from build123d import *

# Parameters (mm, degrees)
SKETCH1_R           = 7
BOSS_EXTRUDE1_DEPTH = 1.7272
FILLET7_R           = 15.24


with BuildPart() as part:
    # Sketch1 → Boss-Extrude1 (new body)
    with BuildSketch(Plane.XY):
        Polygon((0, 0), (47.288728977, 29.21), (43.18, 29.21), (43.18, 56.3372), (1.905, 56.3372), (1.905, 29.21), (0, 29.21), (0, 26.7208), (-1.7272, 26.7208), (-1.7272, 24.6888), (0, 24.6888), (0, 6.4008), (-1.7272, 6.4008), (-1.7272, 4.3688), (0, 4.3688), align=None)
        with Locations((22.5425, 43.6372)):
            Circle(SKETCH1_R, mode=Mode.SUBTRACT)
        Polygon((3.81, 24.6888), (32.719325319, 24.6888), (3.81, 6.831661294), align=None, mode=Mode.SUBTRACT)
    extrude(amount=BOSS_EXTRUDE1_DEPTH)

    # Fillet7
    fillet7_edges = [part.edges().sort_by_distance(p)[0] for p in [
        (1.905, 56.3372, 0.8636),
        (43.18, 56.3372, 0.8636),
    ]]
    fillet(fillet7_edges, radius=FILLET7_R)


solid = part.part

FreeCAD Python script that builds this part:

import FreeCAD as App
import Part
import Sketcher
Q = App.Units.Quantity


def edges_at(feature, points):
    """Names of the edges that pass closest to the given points."""
    edges = feature.Shape.Edges
    near = lambda p: min(range(len(edges)), key=lambda i: edges[i].distToShape(Part.Vertex(*p))[0])
    return sorted({f"Edge{near(p) + 1}" for p in points})

doc = App.newDocument("Part")
params = doc.addObject("Spreadsheet::Sheet", "Params")
for row, (alias, value) in enumerate([
    ("sketch1_height", "0.08 in"),
    ("sketch1_height2", "0.72 in"),
    ("sketch1_width", "1.625 in"),
    ("sketch1_width2", "0.068 in"),
    ("sketch1_height3", "1.068 in"),
    ("pad1_length", "0.068 in"),
    ("fillet_radius", "0.6 in"),
], start=1):
    params.set(f"A{row}", alias)
    params.set(f"B{row}", "=" + value)
    params.setAlias(f"B{row}", alias)

body = doc.addObject("PartDesign::Body", "Body")

# Sketch on XY plane
sketch1 = doc.addObject("Sketcher::SketchObject", "Sketch")
body.addObject(sketch1)
sketch1.AttachmentSupport = (doc.XY_Plane, [""])
sketch1.MapMode = "FlatFace"
sketch1.addGeometry([
    Part.LineSegment(App.Vector(0, 0, 0), App.Vector(47.3, 29.2, 0)),  # 0
    Part.LineSegment(App.Vector(47.3, 29.2, 0), App.Vector(43.2, 29.2, 0)),  # 1
    Part.LineSegment(App.Vector(43.2, 29.2, 0), App.Vector(43.2, 56.3, 0)),  # 2
    Part.LineSegment(App.Vector(43.2, 56.3, 0), App.Vector(1.9, 56.3, 0)),  # 3
    Part.LineSegment(App.Vector(1.9, 56.3, 0), App.Vector(1.9, 29.2, 0)),  # 4
    Part.LineSegment(App.Vector(1.9, 29.2, 0), App.Vector(0, 29.2, 0)),  # 5
    Part.LineSegment(App.Vector(0, 29.2, 0), App.Vector(0, 26.7, 0)),  # 6
    Part.LineSegment(App.Vector(0, 26.7, 0), App.Vector(-1.7, 26.7, 0)),  # 7
    Part.LineSegment(App.Vector(-1.7, 26.7, 0), App.Vector(-1.7, 24.7, 0)),  # 8
    Part.LineSegment(App.Vector(-1.7, 24.7, 0), App.Vector(0, 24.7, 0)),  # 9
    Part.LineSegment(App.Vector(0, 24.7, 0), App.Vector(0, 6.4, 0)),  # 10
    Part.LineSegment(App.Vector(0, 6.4, 0), App.Vector(-1.7, 6.4, 0)),  # 11
    Part.LineSegment(App.Vector(-1.7, 6.4, 0), App.Vector(-1.7, 4.4, 0)),  # 12
    Part.LineSegment(App.Vector(-1.7, 4.4, 0), App.Vector(0, 4.4, 0)),  # 13
    Part.LineSegment(App.Vector(0, 4.4, 0), App.Vector(0, 0, 0)),  # 14
    Part.LineSegment(App.Vector(3.8, 6.8, 0), App.Vector(3.8, 24.7, 0)),  # 15
    Part.LineSegment(App.Vector(3.8, 24.7, 0), App.Vector(32.7, 24.7, 0)),  # 16
    Part.LineSegment(App.Vector(32.7, 24.7, 0), App.Vector(3.8, 6.8, 0)),  # 17
    Part.Circle(App.Vector(22.5, 43.6, 0), App.Vector(0, 0, 1), 7),  # 18
], False)
sketch1.addConstraint([
    Sketcher.Constraint("Coincident", 0, 2, 1, 1),
    Sketcher.Constraint("Coincident", 1, 2, 2, 1),
    Sketcher.Constraint("Coincident", 2, 2, 3, 1),
    Sketcher.Constraint("Coincident", 3, 2, 4, 1),
    Sketcher.Constraint("Coincident", 4, 2, 5, 1),
    Sketcher.Constraint("Coincident", 5, 2, 6, 1),
    Sketcher.Constraint("Coincident", 6, 2, 7, 1),
    Sketcher.Constraint("Coincident", 7, 2, 8, 1),
    Sketcher.Constraint("Coincident", 8, 2, 9, 1),
    Sketcher.Constraint("Coincident", 9, 2, 10, 1),
    Sketcher.Constraint("Coincident", 10, 2, 11, 1),
    Sketcher.Constraint("Coincident", 11, 2, 12, 1),
    Sketcher.Constraint("Coincident", 12, 2, 13, 1),
    Sketcher.Constraint("Coincident", 13, 2, 14, 1),
    Sketcher.Constraint("Coincident", 14, 2, 0, 1),
    Sketcher.Constraint("Coincident", 15, 2, 16, 1),
    Sketcher.Constraint("Coincident", 16, 2, 17, 1),
    Sketcher.Constraint("Coincident", 17, 2, 15, 1),
    Sketcher.Constraint("Horizontal", 1),
    Sketcher.Constraint("Vertical", 2),
    Sketcher.Constraint("Horizontal", 3),
    Sketcher.Constraint("Vertical", 4),
    Sketcher.Constraint("Horizontal", 5),
    Sketcher.Constraint("Vertical", 6),
    Sketcher.Constraint("Horizontal", 7),
    Sketcher.Constraint("Vertical", 8),
    Sketcher.Constraint("Horizontal", 9),
    Sketcher.Constraint("Vertical", 10),
    Sketcher.Constraint("Horizontal", 11),
    Sketcher.Constraint("Vertical", 12),
    Sketcher.Constraint("Horizontal", 13),
    Sketcher.Constraint("Vertical", 14),
    Sketcher.Constraint("Vertical", 15),
    Sketcher.Constraint("Horizontal", 16),
    Sketcher.Constraint("Coincident", 14, 2, -1, 1),
    Sketcher.Constraint("PointOnObject", 5, 2, -2),
    Sketcher.Constraint("PointOnObject", 9, 2, -2),
    Sketcher.Constraint("Parallel", 0, 17),
    Sketcher.Constraint("Horizontal", 1, 2, 4, 2),
    Sketcher.Constraint("Horizontal", 9, 2, 15, 2),
    Sketcher.Constraint("Vertical", 8, 2, 11, 2),
    Sketcher.Constraint("Equal", 8, 12),
    Sketcher.Constraint("DistanceY", 8, 2, 8, 1, Q("0.08 in")),
    Sketcher.Constraint("DistanceY", 10, 2, 10, 1, Q("0.72 in")),
    Sketcher.Constraint("DistanceX", -1, 1, 1, 2, Q("1.7 in")),
    Sketcher.Constraint("DistanceY", 18, 3, 2, 2, Q("0.5 in")),
    Sketcher.Constraint("Diameter", 18, Q("14 mm")),
    Sketcher.Constraint("DistanceX", 3, 2, 3, 1, Q("1.625 in")),
    Sketcher.Constraint("DistanceX", 7, 2, 7, 1, Q("0.068 in")),
    Sketcher.Constraint("DistanceY", 2, 1, 2, 2, Q("1.068 in")),
    Sketcher.Constraint("DistanceY", 6, 2, 6, 1, Q("0.098 in")),
    Sketcher.Constraint("DistanceY", 14, 2, 14, 1, Q("0.172 in")),
    Sketcher.Constraint("DistanceX", -1, 1, 15, 2, Q("0.15 in")),
    Sketcher.Constraint("DistanceX", 18, 3, 1, 2, Q("0.8125 in")),
    Sketcher.Constraint("DistanceX", 1, 2, 1, 1, Q("4.108729 mm")),
    Sketcher.Constraint("DistanceY", 15, 1, 15, 2, Q("17.857139 mm")),
])
sketch1.setExpression("Constraints[42]", "Params.sketch1_height")
sketch1.setExpression("Constraints[43]", "Params.sketch1_height2")
sketch1.setExpression("Constraints[47]", "Params.sketch1_width")
sketch1.setExpression("Constraints[48]", "Params.sketch1_width2")
sketch1.setExpression("Constraints[49]", "Params.sketch1_height3")
pad1 = doc.addObject("PartDesign::Pad", "Pad")
body.addObject(pad1)
pad1.Profile = sketch1
pad1.setExpression("Length", "Params.pad1_length")
doc.recompute()

fillet = doc.addObject("PartDesign::Fillet", "Fillet")
body.addObject(fillet)
fillet.Base = (pad1, edges_at(pad1, [(1.905, 56.337, 0.864), (43.18, 56.337, 0.864)]))
fillet.setExpression("Radius", "Params.fillet_radius")

doc.recompute()
